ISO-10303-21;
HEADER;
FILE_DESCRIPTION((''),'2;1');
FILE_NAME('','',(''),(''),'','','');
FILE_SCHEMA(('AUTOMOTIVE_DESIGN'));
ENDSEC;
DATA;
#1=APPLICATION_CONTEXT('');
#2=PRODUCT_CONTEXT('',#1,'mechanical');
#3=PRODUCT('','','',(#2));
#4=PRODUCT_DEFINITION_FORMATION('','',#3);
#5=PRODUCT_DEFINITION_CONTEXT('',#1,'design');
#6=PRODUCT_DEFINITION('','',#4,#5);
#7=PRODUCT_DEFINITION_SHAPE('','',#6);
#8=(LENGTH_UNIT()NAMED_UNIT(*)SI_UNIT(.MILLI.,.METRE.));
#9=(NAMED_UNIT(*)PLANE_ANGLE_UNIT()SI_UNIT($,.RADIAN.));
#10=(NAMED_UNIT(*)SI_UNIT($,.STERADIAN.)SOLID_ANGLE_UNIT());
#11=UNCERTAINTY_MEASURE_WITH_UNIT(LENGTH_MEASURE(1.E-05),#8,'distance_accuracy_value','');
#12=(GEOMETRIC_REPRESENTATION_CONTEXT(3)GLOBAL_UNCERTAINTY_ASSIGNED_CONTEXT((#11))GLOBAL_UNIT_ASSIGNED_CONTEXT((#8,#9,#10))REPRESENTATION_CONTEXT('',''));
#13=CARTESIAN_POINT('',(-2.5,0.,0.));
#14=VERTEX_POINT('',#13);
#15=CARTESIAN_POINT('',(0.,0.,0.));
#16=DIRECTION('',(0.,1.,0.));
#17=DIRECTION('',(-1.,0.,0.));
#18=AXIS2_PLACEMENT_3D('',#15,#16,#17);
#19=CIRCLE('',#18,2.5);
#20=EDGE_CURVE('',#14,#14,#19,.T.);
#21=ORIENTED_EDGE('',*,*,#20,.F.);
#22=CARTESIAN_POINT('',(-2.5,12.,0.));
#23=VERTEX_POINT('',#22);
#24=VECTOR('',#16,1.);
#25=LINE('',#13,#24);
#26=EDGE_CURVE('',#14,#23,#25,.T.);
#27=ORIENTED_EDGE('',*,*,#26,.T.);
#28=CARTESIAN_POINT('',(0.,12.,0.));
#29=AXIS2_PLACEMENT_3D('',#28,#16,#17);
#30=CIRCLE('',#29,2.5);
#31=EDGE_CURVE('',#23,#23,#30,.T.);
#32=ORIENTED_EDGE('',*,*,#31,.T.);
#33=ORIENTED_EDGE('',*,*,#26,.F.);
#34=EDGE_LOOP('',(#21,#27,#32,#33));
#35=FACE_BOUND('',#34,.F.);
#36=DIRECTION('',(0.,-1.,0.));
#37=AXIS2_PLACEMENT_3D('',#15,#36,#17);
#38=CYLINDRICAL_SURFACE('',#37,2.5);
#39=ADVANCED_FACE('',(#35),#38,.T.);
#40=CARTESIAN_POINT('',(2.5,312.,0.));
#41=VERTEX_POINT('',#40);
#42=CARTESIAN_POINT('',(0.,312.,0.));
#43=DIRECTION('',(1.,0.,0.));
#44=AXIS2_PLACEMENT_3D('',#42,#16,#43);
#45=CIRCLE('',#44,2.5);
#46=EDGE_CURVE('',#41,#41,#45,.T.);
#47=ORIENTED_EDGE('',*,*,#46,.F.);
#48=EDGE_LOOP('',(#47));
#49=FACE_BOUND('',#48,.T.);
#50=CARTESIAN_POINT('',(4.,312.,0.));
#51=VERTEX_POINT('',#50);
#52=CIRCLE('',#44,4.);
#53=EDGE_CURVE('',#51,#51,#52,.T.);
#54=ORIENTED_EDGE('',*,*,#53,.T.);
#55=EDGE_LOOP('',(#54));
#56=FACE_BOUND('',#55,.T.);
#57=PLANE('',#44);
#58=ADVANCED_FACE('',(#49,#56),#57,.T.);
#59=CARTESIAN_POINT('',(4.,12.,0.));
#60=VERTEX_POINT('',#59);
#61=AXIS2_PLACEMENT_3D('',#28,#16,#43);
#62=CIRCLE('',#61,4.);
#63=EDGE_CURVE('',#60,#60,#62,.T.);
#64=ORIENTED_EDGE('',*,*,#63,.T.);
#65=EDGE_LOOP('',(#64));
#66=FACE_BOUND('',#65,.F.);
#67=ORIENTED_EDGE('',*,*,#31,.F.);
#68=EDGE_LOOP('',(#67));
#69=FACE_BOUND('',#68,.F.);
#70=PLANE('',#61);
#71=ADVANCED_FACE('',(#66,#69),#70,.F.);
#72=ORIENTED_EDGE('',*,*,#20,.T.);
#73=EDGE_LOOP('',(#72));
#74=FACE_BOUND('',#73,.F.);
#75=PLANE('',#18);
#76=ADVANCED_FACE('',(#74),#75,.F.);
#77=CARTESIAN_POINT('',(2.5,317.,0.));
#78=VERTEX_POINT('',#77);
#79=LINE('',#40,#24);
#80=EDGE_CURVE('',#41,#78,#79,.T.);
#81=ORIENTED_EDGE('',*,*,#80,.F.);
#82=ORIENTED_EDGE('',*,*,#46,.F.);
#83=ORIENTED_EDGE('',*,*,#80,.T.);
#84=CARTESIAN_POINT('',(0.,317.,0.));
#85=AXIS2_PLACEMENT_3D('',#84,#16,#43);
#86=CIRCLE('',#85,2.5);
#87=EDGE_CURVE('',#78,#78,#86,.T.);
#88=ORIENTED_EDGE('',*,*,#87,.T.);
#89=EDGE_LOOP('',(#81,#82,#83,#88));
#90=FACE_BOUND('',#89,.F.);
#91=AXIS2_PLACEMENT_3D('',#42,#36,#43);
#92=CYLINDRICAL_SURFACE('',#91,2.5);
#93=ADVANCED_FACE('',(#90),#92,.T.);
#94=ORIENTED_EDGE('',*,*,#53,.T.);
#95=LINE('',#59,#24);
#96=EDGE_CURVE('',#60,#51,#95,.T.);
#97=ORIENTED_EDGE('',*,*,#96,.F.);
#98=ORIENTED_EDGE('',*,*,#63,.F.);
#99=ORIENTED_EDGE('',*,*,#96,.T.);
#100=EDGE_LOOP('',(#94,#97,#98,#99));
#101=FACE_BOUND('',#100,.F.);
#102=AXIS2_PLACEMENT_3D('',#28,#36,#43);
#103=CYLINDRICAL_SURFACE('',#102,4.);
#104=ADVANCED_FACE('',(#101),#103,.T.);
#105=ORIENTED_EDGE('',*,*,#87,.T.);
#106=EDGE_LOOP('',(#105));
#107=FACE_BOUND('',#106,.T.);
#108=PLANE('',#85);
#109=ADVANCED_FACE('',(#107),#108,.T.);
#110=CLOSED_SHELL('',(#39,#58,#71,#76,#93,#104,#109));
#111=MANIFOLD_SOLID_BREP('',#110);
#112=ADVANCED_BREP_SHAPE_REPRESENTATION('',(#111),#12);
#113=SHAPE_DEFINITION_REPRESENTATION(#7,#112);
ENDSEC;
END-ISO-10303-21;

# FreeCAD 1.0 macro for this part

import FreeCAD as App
import Part
import Sketcher

V = App.Vector
Q = App.Units.Quantity

doc = App.newDocument("Part")
params = doc.addObject("Spreadsheet::Sheet", "Params")
for row, (alias, value) in enumerate([
    ("sketch1_diameter", "5 mm"),
    ("pad1_length", "12 mm"),
    ("sketch2_diameter", "8 mm"),
    ("pad2_length", "300 mm"),
    ("sketch3_diameter", "5 mm"),
    ("pad3_length", "5 mm"),
], start=1):
    params.set(f"A{row}", alias)
    params.set(f"B{row}", "=" + value)
    params.setAlias(f"B{row}", alias)

body = doc.addObject("PartDesign::Body", "Body")

# Sketch on XZ plane
sketch1 = body.newObject("Sketcher::SketchObject", "Sketch")
sketch1.AttachmentSupport = (doc.getObject("XZ_Plane"), [""])
sketch1.MapMode = "FlatFace"
sketch1.addGeometry(Part.Circle(V(0, 0, 0), V(0, 0, 1), 2.5), False)
sketch1.addConstraint(Sketcher.Constraint("Coincident", 0, 3, -1, 1))
sketch1.addConstraint(Sketcher.Constraint("Diameter", 0, Q("5 mm")))
sketch1.setExpression("Constraints[1]", "Params.sketch1_diameter")
pad1 = body.newObject("PartDesign::Pad", "Pad")
pad1.Profile = sketch1
pad1.setExpression("Length", "Params.pad1_length")
pad1.Reversed = True

# Sketch on XZ plane
sketch2 = body.newObject("Sketcher::SketchObject", "Sketch001")
sketch2.AttachmentSupport = (doc.getObject("XZ_Plane"), [""])
sketch2.MapMode = "FlatFace"
sketch2.AttachmentOffset = App.Placement(V(0, 0, -12), App.Rotation())
sketch2.addGeometry(Part.Circle(V(0, 0, 0), V(0, 0, 1), 4), False)
sketch2.addConstraint(Sketcher.Constraint("Coincident", 0, 3, -1, 1))
sketch2.addConstraint(Sketcher.Constraint("Diameter", 0, Q("8 mm")))
sketch2.setExpression("Constraints[1]", "Params.sketch2_diameter")
pad2 = body.newObject("PartDesign::Pad", "Pad001")
pad2.Profile = sketch2
pad2.setExpression("Length", "Params.pad2_length")
pad2.Reversed = True

# Sketch on XZ plane
sketch3 = body.newObject("Sketcher::SketchObject", "Sketch002")
sketch3.AttachmentSupport = (doc.getObject("XZ_Plane"), [""])
sketch3.MapMode = "FlatFace"
sketch3.AttachmentOffset = App.Placement(V(0, 0, -312), App.Rotation())
sketch3.addGeometry(Part.Circle(V(0, 0, 0), V(0, 0, 1), 2.5), False)
sketch3.addConstraint(Sketcher.Constraint("Coincident", 0, 3, -1, 1))
sketch3.addConstraint(Sketcher.Constraint("Diameter", 0, Q("5 mm")))
sketch3.setExpression("Constraints[1]", "Params.sketch3_diameter")
pad3 = body.newObject("PartDesign::Pad", "Pad002")
pad3.Profile = sketch3
pad3.setExpression("Length", "Params.pad3_length")
pad3.Reversed = True

doc.recompute()
